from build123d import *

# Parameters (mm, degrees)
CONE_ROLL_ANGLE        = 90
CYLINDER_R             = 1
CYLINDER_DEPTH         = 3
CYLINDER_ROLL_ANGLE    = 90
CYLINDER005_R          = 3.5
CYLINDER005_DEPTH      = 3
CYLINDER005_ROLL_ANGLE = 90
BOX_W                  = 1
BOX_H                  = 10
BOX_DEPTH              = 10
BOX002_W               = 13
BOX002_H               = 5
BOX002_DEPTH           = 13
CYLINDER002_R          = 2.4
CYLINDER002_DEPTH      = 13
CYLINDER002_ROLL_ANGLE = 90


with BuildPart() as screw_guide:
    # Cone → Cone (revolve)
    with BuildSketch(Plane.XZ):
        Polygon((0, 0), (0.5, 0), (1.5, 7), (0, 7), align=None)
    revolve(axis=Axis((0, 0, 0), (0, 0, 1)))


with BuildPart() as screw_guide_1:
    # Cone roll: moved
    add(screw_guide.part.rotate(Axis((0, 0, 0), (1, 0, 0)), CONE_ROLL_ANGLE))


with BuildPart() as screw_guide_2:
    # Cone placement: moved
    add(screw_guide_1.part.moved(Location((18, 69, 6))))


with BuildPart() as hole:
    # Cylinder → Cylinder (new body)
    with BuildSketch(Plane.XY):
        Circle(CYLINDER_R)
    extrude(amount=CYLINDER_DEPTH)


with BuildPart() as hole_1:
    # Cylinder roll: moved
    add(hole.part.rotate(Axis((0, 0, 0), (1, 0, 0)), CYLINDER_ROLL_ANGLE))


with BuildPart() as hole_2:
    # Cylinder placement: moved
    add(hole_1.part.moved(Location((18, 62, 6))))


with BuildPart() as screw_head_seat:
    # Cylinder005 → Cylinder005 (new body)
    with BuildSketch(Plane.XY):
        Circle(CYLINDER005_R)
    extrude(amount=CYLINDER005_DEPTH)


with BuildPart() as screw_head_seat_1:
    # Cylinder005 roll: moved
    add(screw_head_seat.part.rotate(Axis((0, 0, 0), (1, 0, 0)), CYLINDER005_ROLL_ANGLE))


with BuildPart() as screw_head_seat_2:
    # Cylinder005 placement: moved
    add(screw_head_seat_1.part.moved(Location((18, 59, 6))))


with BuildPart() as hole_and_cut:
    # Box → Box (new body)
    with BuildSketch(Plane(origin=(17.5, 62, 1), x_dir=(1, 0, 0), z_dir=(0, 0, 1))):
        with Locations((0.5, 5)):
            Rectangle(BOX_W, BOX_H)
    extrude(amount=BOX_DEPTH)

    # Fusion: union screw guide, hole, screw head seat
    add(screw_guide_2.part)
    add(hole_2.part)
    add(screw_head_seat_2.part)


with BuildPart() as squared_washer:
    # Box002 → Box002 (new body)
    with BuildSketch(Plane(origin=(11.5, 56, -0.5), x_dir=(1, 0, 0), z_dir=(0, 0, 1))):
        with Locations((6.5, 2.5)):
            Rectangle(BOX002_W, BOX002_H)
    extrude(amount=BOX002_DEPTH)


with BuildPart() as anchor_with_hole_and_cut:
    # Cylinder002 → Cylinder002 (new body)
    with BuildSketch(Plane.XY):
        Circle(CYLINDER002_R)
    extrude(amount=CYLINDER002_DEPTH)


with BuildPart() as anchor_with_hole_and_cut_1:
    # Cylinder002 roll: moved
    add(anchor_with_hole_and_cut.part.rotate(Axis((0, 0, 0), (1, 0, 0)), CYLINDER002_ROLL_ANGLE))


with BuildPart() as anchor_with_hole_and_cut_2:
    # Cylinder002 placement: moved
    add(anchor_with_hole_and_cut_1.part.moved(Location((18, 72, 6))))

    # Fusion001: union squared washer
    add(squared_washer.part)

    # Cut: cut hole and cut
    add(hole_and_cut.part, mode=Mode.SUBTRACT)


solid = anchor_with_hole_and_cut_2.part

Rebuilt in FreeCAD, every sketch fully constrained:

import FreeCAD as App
import Part
import Sketcher
from FreeCAD import Vector

doc = App.newDocument("Part")
params = doc.addObject("Spreadsheet::Sheet", "Params")
for row, (alias, value) in enumerate([
    ("sketch1_height", "7 mm"),
    ("sketch1_width", "0.5 mm"),
    ("sketch1_width2", "1.5 mm"),
    ("revolution_angle", "360 deg"),
    ("sketch2_diameter", "2 mm"),
    ("pad1_length", "3 mm"),
    ("sketch3_diameter", "7 mm"),
    ("pad2_length", "3 mm"),
    ("sketch4_width", "1 mm"),
    ("sketch4_height", "10 mm"),
    ("pad3_length", "10 mm"),
    ("sketch5_width", "13 mm"),
    ("sketch5_height", "5 mm"),
    ("pad4_length", "13 mm"),
    ("sketch6_diameter", "4.8 mm"),
    ("pad5_length", "13 mm"),
], start=1):
    params.set(f"A{row}", alias)
    params.set(f"B{row}", "=" + value)
    params.setAlias(f"B{row}", alias)

body = doc.addObject("PartDesign::Body", "Body")

sketch1 = body.newObject("Sketcher::SketchObject", "Sketch")
sketch1.AttachmentSupport = (doc.getObject("XZ_Plane"), [""])
sketch1.MapMode = "FlatFace"
sketch1.addGeometry([
    Part.LineSegment(Vector(0, 0, 0), Vector(0.5, 0, 0)),
    Part.LineSegment(Vector(0.5, 0, 0), Vector(1.5, 7, 0)),
    Part.LineSegment(Vector(1.5, 7, 0), Vector(0, 7, 0)),
    Part.LineSegment(Vector(0, 7, 0), Vector(0, 0, 0)),
], False)
sketch1.addConstraint([
    Sketcher.Constraint("Coincident", 0, 2, 1, 1),
    Sketcher.Constraint("Coincident", 1, 2, 2, 1),
    Sketcher.Constraint("Coincident", 2, 2, 3, 1),
    Sketcher.Constraint("Coincident", 3, 2, 0, 1),
    Sketcher.Constraint("Horizontal", 0),
    Sketcher.Constraint("Horizontal", 2),
    Sketcher.Constraint("Vertical", 3),
    Sketcher.Constraint("Coincident", 3, 2, -1, 1),
    Sketcher.Constraint("DistanceY", 3, 2, 3, 1, 7.0),
    Sketcher.Constraint("DistanceX", 0, 1, 0, 2, 0.5),
    Sketcher.Constraint("DistanceX", 2, 2, 2, 1, 1.5),
])
sketch1.setExpression("Constraints[8]", "Params.sketch1_height")
sketch1.setExpression("Constraints[9]", "Params.sketch1_width")
sketch1.setExpression("Constraints[10]", "Params.sketch1_width2")
revolution = body.newObject("PartDesign::Revolution", "Revolution")
revolution.Profile = sketch1
revolution.ReferenceAxis = (sketch1, ["V_Axis"])
revolution.setExpression("Angle", "Params.revolution_angle")
body2 = doc.addObject("PartDesign::Body", "Body001")
doc.recompute()

body.Placement = App.Placement(Vector(0, 0, 0), App.Rotation(Vector(1, 0, 0), 90))
boolean = body2.newObject("PartDesign::Boolean", "Boolean")
boolean.Type = "Fuse"
boolean.addObjects([body])
body3 = doc.addObject("PartDesign::Body", "Body002")
doc.recompute()

body2.Placement = App.Placement(Vector(18, 69, 6), App.Rotation(Vector(0, 0, 1), 0))
boolean2 = body3.newObject("PartDesign::Boolean", "Boolean001")
boolean2.Type = "Fuse"
boolean2.addObjects([body2])
body4 = doc.addObject("PartDesign::Body", "Body003")

sketch2 = body4.newObject("Sketcher::SketchObject", "Sketch001")
sketch2.AttachmentSupport = (doc.getObject("XY_Plane003"), [""])
sketch2.MapMode = "FlatFace"
sketch2.addGeometry(Part.Circle(Vector(0, 0, 0), Vector(0, 0, 1), 1), False)
sketch2.addConstraint([
    Sketcher.Constraint("Coincident", 0, 3, -1, 1),
    Sketcher.Constraint("Diameter", 0, 2.0),
])
sketch2.setExpression("Constraints[1]", "Params.sketch2_diameter")
pad1 = body4.newObject("PartDesign::Pad", "Pad")
pad1.Profile = sketch2
pad1.setExpression("Length", "Params.pad1_length")
body5 = doc.addObject("PartDesign::Body", "Body004")
doc.recompute()

body4.Placement = App.Placement(Vector(0, 0, 0), App.Rotation(Vector(1, 0, 0), 90))
boolean3 = body5.newObject("PartDesign::Boolean", "Boolean002")
boolean3.Type = "Fuse"
boolean3.addObjects([body4])
body6 = doc.addObject("PartDesign::Body", "Body005")
doc.recompute()

body5.Placement = App.Placement(Vector(18, 62, 6), App.Rotation(Vector(0, 0, 1), 0))
boolean4 = body6.newObject("PartDesign::Boolean", "Boolean003")
boolean4.Type = "Fuse"
boolean4.addObjects([body5])
body7 = doc.addObject("PartDesign::Body", "Body006")

sketch3 = body7.newObject("Sketcher::SketchObject", "Sketch002")
sketch3.AttachmentSupport = (doc.getObject("XY_Plane006"), [""])
sketch3.MapMode = "FlatFace"
sketch3.addGeometry(Part.Circle(Vector(0, 0, 0), Vector(0, 0, 1), 3.5), False)
sketch3.addConstraint([
    Sketcher.Constraint("Coincident", 0, 3, -1, 1),
    Sketcher.Constraint("Diameter", 0, 7.0),
])
sketch3.setExpression("Constraints[1]", "Params.sketch3_diameter")
pad2 = body7.newObject("PartDesign::Pad", "Pad001")
pad2.Profile = sketch3
pad2.setExpression("Length", "Params.pad2_length")
body8 = doc.addObject("PartDesign::Body", "Body007")
doc.recompute()

body7.Placement = App.Placement(Vector(0, 0, 0), App.Rotation(Vector(1, 0, 0), 90))
boolean5 = body8.newObject("PartDesign::Boolean", "Boolean004")
boolean5.Type = "Fuse"
boolean5.addObjects([body7])
body9 = doc.addObject("PartDesign::Body", "Body008")
doc.recompute()

body8.Placement = App.Placement(Vector(18, 59, 6), App.Rotation(Vector(0, 0, 1), 0))
boolean6 = body9.newObject("PartDesign::Boolean", "Boolean005")
boolean6.Type = "Fuse"
boolean6.addObjects([body8])
body10 = doc.addObject("PartDesign::Body", "Body009")

sketch4 = body10.newObject("Sketcher::SketchObject", "Sketch003")
sketch4.AttachmentSupport = (doc.getObject("XY_Plane009"), [""])
sketch4.MapMode = "FlatFace"
sketch4.AttachmentOffset = App.Placement(Vector(0, 0, 1), App.Rotation())
sketch4.addGeometry([
    Part.LineSegment(Vector(17.5, 72, 0), Vector(17.5, 62, 0)),
    Part.LineSegment(Vector(17.5, 62, 0), Vector(18.5, 62, 0)),
    Part.LineSegment(Vector(18.5, 62, 0), Vector(18.5, 72, 0)),
    Part.LineSegment(Vector(18.5, 72, 0), Vector(17.5, 72, 0)),
], False)
sketch4.addConstraint([
    Sketcher.Constraint("Coincident", 0, 2, 1, 1),
    Sketcher.Constraint("Coincident", 1, 2, 2, 1),
    Sketcher.Constraint("Coincident", 2, 2, 3, 1),
    Sketcher.Constraint("Coincident", 3, 2, 0, 1),
    Sketcher.Constraint("Vertical", 0),
    Sketcher.Constraint("Horizontal", 1),
    Sketcher.Constraint("Vertical", 2),
    Sketcher.Constraint("Horizontal", 3),
    Sketcher.Constraint("DistanceX", 1, 1, 1, 2, 1.0),
    Sketcher.Constraint("DistanceY", 0, 2, 0, 1, 10.0),
    Sketcher.Constraint("DistanceY", -1, 1, 0, 2, 62.0),
    Sketcher.Constraint("DistanceX", -1, 1, 0, 2, 17.5),
])
sketch4.setExpression("Constraints[8]", "Params.sketch4_width")
sketch4.setExpression("Constraints[9]", "Params.sketch4_height")
pad3 = body10.newObject("PartDesign::Pad", "Pad002")
pad3.Profile = sketch4
pad3.setExpression("Length", "Params.pad3_length")
doc.recompute()

boolean7 = body10.newObject("PartDesign::Boolean", "Boolean006")
boolean7.Type = "Fuse"
boolean7.addObjects([body3])
doc.recompute()

boolean8 = body10.newObject("PartDesign::Boolean", "Boolean007")
boolean8.Type = "Fuse"
boolean8.addObjects([body6])
doc.recompute()

boolean9 = body10.newObject("PartDesign::Boolean", "Boolean008")
boolean9.Type = "Fuse"
boolean9.addObjects([body9])
body11 = doc.addObject("PartDesign::Body", "Body010")

sketch5 = body11.newObject("Sketcher::SketchObject", "Sketch004")
sketch5.AttachmentSupport = (doc.getObject("XY_Plane010"), [""])
sketch5.MapMode = "FlatFace"
sketch5.AttachmentOffset = App.Placement(Vector(0, 0, -0.5), App.Rotation())
sketch5.addGeometry([
    Part.LineSegment(Vector(12, 61, 0), Vector(12, 56, 0)),
    Part.LineSegment(Vector(12, 56, 0), Vector(24, 56, 0)),
    Part.LineSegment(Vector(24, 56, 0), Vector(24, 61, 0)),
    Part.LineSegment(Vector(24, 61, 0), Vector(12, 61, 0)),
], False)
sketch5.addConstraint([
    Sketcher.Constraint("Coincident", 0, 2, 1, 1),
    Sketcher.Constraint("Coincident", 1, 2, 2, 1),
    Sketcher.Constraint("Coincident", 2, 2, 3, 1),
    Sketcher.Constraint("Coincident", 3, 2, 0, 1),
    Sketcher.Constraint("Vertical", 0),
    Sketcher.Constraint("Horizontal", 1),
    Sketcher.Constraint("Vertical", 2),
    Sketcher.Constraint("Horizontal", 3),
    Sketcher.Constraint("DistanceX", 1, 1, 1, 2, 13.0),
    Sketcher.Constraint("DistanceY", 0, 2, 0, 1, 5.0),
    Sketcher.Constraint("DistanceY", -1, 1, 0, 2, 56.0),
    Sketcher.Constraint("DistanceX", -1, 1, 0, 2, 11.5),
])
sketch5.setExpression("Constraints[8]", "Params.sketch5_width")
sketch5.setExpression("Constraints[9]", "Params.sketch5_height")
pad4 = body11.newObject("PartDesign::Pad", "Pad003")
pad4.Profile = sketch5
pad4.setExpression("Length", "Params.pad4_length")
body12 = doc.addObject("PartDesign::Body", "Body011")

sketch6 = body12.newObject("Sketcher::SketchObject", "Sketch005")
sketch6.AttachmentSupport = (doc.getObject("XY_Plane011"), [""])
sketch6.MapMode = "FlatFace"
sketch6.addGeometry(Part.Circle(Vector(0, 0, 0), Vector(0, 0, 1), 2.4), False)
sketch6.addConstraint([
    Sketcher.Constraint("Coincident", 0, 3, -1, 1),
    Sketcher.Constraint("Diameter", 0, 4.8),
])
sketch6.setExpression("Constraints[1]", "Params.sketch6_diameter")
pad5 = body12.newObject("PartDesign::Pad", "Pad004")
pad5.Profile = sketch6
pad5.setExpression("Length", "Params.pad5_length")
body13 = doc.addObject("PartDesign::Body", "Body012")
doc.recompute()

body12.Placement = App.Placement(Vector(0, 0, 0), App.Rotation(Vector(1, 0, 0), 90))
boolean10 = body13.newObject("PartDesign::Boolean", "Boolean009")
boolean10.Type = "Fuse"
boolean10.addObjects([body12])
body14 = doc.addObject("PartDesign::Body", "Body013")
doc.recompute()

body13.Placement = App.Placement(Vector(18, 72, 6), App.Rotation(Vector(0, 0, 1), 0))
boolean11 = body14.newObject("PartDesign::Boolean", "Boolean010")
boolean11.Type = "Fuse"
boolean11.addObjects([body13])
doc.recompute()

boolean12 = body14.newObject("PartDesign::Boolean", "Boolean011")
boolean12.Type = "Fuse"
boolean12.addObjects([body11])
doc.recompute()

boolean13 = body14.newObject("PartDesign::Boolean", "Boolean012")
boolean13.Type = "Cut"
boolean13.addObjects([body10])

doc.recompute()
